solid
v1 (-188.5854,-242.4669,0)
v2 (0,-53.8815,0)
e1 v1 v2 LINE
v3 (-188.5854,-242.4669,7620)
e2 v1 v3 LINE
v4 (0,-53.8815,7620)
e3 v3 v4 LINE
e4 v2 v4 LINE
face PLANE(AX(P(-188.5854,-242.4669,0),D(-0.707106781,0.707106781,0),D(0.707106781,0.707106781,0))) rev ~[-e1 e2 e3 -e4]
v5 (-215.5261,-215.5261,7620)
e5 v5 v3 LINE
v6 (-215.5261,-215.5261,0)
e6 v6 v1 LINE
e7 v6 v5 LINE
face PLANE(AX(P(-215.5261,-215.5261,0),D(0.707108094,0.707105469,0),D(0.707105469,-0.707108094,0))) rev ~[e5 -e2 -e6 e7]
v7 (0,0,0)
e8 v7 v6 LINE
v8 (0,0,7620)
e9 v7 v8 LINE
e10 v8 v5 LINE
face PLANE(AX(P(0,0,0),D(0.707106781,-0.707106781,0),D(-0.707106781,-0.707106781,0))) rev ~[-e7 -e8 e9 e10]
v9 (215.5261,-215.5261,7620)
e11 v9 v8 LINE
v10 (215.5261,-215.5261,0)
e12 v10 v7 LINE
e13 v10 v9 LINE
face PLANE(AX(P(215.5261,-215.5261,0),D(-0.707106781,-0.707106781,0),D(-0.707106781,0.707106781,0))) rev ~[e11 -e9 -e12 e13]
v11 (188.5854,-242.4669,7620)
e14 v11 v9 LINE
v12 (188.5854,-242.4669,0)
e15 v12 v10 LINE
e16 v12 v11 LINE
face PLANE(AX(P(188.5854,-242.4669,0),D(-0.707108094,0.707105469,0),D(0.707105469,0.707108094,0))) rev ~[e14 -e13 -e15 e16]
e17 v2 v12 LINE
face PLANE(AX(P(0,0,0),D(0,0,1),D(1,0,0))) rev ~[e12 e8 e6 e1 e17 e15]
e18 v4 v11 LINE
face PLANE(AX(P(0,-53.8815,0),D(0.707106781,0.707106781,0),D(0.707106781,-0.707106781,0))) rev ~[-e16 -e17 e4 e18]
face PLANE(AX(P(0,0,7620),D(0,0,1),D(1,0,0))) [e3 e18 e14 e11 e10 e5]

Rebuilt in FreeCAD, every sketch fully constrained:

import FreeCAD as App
import Part
import Sketcher
from FreeCAD import Vector
Q = App.Units.Quantity

doc = App.newDocument("Part")
body = doc.addObject("PartDesign::Body", "Body")

# Sketch on XY plane
sketch1 = doc.addObject("Sketcher::SketchObject", "Sketch")
body.addObject(sketch1)
sketch1.AttachmentSupport = (doc.XY_Plane, [""])
sketch1.MapMode = "FlatFace"
sketch1.addGeometry(Part.LineSegment(Vector(216, -216, 0), Vector(0, 0, 0)), False)
sketch1.addGeometry(Part.LineSegment(Vector(0, 0, 0), Vector(-216, -216, 0)), False)
sketch1.addGeometry(Part.LineSegment(Vector(-216, -216, 0), Vector(-189, -242, 0)), False)
sketch1.addGeometry(Part.LineSegment(Vector(-189, -242, 0), Vector(0, -54, 0)), False)
sketch1.addGeometry(Part.LineSegment(Vector(0, -54, 0), Vector(189, -242, 0)), False)
sketch1.addGeometry(Part.LineSegment(Vector(189, -242, 0), Vector(216, -216, 0)), False)
sketch1.addConstraint(Sketcher.Constraint("Coincident", 0, 2, 1, 1))
sketch1.addConstraint(Sketcher.Constraint("Coincident", 1, 2, 2, 1))
sketch1.addConstraint(Sketcher.Constraint("Coincident", 2, 2, 3, 1))
sketch1.addConstraint(Sketcher.Constraint("Coincident", 3, 2, 4, 1))
sketch1.addConstraint(Sketcher.Constraint("Coincident", 4, 2, 5, 1))
sketch1.addConstraint(Sketcher.Constraint("Coincident", 5, 2, 0, 1))
sketch1.addConstraint(Sketcher.Constraint("Coincident", 0, 2, -1, 1))
sketch1.addConstraint(Sketcher.Constraint("Symmetric", 2, 2, 4, 2, -2))
sketch1.addConstraint(Sketcher.Constraint("Symmetric", 1, 2, 5, 2, -2))
sketch1.addConstraint(Sketcher.Constraint("PointOnObject", 3, 2, -2))
sketch1.addConstraint(Sketcher.Constraint("Perpendicular", 0, 1))
sketch1.addConstraint(Sketcher.Constraint("Perpendicular", 1, 2))
sketch1.addConstraint(Sketcher.Constraint("Perpendicular", 2, 3))
sketch1.addConstraint(Sketcher.Constraint("Distance", 0, Q("12 in")))
sketch1.addConstraint(Sketcher.Constraint("Distance", 2, Q("1.5 in")))
pad1 = doc.addObject("PartDesign::Pad", "Pad")
body.addObject(pad1)
pad1.Profile = sketch1
pad1.Length = Q("300 in")

doc.recompute()
